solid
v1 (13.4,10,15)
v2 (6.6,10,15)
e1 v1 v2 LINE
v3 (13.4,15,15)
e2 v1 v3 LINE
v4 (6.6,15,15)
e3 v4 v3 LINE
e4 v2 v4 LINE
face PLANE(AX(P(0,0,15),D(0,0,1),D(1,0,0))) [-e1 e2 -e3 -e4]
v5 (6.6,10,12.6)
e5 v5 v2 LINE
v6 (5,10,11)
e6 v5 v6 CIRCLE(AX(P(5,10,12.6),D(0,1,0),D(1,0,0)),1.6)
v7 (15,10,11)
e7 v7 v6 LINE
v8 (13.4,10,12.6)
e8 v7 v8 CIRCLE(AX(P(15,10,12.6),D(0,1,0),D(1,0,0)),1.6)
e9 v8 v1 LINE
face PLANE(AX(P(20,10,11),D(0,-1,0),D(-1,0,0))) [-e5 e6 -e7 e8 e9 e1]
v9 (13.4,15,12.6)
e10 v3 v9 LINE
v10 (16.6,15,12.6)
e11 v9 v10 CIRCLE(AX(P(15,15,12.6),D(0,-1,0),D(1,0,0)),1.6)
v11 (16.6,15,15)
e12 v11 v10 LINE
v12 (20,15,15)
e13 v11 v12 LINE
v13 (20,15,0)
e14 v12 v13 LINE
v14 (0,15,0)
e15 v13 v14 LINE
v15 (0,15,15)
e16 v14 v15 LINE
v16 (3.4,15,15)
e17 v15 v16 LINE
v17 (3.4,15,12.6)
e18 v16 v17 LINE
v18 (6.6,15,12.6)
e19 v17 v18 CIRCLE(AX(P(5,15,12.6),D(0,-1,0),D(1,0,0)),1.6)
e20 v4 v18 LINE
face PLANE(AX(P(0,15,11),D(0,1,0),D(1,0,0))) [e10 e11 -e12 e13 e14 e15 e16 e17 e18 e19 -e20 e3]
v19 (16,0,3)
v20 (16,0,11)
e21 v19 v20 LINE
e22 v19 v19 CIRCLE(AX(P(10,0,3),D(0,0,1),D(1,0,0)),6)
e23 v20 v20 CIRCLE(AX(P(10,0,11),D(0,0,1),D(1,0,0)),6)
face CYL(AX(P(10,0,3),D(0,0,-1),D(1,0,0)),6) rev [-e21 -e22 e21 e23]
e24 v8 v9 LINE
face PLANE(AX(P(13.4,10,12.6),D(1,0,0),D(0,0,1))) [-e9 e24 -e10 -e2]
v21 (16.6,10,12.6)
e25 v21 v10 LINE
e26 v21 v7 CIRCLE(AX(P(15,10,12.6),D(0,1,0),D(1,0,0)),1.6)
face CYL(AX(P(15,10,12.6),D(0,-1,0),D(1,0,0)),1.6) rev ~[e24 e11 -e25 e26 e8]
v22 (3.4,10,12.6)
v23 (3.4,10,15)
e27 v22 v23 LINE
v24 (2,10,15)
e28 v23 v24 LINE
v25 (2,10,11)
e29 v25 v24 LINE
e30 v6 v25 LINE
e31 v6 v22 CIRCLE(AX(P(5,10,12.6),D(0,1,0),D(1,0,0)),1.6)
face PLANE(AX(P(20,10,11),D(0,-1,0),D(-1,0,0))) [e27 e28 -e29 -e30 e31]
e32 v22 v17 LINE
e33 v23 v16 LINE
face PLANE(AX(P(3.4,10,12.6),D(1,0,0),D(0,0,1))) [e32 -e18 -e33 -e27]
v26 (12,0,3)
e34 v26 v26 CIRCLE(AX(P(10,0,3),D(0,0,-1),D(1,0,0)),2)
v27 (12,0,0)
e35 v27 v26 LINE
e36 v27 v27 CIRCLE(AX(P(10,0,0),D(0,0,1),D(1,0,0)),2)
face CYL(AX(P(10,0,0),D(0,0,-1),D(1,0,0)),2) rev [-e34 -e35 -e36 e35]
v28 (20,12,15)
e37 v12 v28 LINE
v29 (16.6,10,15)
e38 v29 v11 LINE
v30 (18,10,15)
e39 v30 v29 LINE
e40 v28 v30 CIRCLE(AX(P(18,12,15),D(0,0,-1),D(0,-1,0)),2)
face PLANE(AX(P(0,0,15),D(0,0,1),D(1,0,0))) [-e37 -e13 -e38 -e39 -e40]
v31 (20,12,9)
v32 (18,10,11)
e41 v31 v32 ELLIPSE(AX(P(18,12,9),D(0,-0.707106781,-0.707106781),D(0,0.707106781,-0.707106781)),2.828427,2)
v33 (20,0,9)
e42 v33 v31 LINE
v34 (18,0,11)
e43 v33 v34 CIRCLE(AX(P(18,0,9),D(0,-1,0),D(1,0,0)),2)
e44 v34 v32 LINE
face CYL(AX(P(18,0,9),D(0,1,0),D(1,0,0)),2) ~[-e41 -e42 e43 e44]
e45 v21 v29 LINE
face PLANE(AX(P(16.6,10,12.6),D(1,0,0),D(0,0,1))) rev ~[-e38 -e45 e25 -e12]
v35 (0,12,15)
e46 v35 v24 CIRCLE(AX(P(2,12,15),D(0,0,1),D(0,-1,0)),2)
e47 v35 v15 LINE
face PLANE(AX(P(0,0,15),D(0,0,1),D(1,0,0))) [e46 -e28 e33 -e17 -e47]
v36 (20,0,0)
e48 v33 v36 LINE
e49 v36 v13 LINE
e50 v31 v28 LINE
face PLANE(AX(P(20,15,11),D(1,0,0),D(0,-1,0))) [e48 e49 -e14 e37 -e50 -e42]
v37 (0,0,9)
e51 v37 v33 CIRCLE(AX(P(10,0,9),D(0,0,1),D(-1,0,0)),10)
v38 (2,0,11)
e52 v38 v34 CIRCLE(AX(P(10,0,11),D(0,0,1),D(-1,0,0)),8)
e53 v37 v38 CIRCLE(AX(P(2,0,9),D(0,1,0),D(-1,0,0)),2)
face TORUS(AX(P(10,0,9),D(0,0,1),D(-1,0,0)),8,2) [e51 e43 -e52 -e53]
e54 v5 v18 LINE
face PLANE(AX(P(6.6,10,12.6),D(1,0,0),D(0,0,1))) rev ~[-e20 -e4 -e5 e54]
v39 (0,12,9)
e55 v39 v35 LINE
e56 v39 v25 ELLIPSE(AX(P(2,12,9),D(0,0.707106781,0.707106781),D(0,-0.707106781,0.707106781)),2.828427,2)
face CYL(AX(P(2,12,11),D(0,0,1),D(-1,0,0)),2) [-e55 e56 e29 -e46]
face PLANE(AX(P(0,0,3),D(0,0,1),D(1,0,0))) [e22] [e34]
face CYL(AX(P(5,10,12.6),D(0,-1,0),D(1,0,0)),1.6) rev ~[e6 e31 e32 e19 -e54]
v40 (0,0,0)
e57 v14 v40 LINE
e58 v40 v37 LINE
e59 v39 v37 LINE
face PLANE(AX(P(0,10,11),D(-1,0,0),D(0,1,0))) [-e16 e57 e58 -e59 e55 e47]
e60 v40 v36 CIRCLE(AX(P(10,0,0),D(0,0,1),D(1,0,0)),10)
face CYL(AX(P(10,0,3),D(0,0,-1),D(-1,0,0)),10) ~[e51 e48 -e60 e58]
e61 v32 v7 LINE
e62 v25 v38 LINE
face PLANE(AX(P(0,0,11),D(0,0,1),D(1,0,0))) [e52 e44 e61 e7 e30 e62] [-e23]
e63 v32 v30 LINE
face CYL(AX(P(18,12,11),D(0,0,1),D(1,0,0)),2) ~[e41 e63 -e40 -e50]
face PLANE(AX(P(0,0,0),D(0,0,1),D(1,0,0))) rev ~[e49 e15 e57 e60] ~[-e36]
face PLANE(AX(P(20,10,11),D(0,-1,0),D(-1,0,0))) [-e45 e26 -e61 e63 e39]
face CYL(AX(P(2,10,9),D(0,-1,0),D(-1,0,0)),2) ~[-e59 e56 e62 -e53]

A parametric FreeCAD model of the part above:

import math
import FreeCAD as App
import Part
import Sketcher

V = App.Vector
Q = App.Units.Quantity


def edges_at(feature, points):
    """Names of the edges that pass closest to the given points."""
    edges = feature.Shape.Edges
    near = lambda p: min(range(len(edges)), key=lambda i: edges[i].distToShape(Part.Vertex(*p))[0])
    return sorted({f"Edge{near(p) + 1}" for p in points})


def add_polygon(sketch, points):
    """Adds a closed chain of lines whose ends are joined by coincident constraints."""
    first, n = sketch.GeometryCount, len(points)
    for a, b in zip(points, points[1:] + points[:1]):
        sketch.addGeometry(Part.LineSegment(App.Vector(*a, 0), App.Vector(*b, 0)), False)
    for i in range(n):
        sketch.addConstraint(Sketcher.Constraint("Coincident", first + i, 2, first + (i + 1) % n, 1))

doc = App.newDocument("Part")
body = doc.addObject("PartDesign::Body", "Body")

# Sketch on XY plane
sketch1 = doc.addObject("Sketcher::SketchObject", "Sketch")
body.addObject(sketch1)
sketch1.AttachmentSupport = (doc.XY_Plane, [""])
sketch1.MapMode = "FlatFace"
sketch1.addGeometry([
    Part.LineSegment(V(0, 15, 0), V(0, 0, 0)),  # 0
    Part.ArcOfCircle(Part.Circle(V(10, 0, 0), V(0, 0, 1), 10), math.radians(180), math.radians(360)),  # 1
    Part.LineSegment(V(20, 0, 0), V(20, 15, 0)),  # 2
    Part.LineSegment(V(20, 15, 0), V(0, 15, 0)),  # 3
    Part.Circle(V(10, 0, 0), V(0, 0, 1), 2),  # 4
], False)
sketch1.addConstraint([
    Sketcher.Constraint("Tangent", 0, 2, 1, 1),
    Sketcher.Constraint("Tangent", 1, 2, 2, 1),
    Sketcher.Constraint("Coincident", 2, 2, 3, 1),
    Sketcher.Constraint("Coincident", 3, 2, 0, 1),
    Sketcher.Constraint("Vertical", 0),
    Sketcher.Constraint("Vertical", 2),
    Sketcher.Constraint("Horizontal", 3),
    Sketcher.Constraint("Coincident", 0, 2, -1, 1),
    Sketcher.Constraint("Coincident", 4, 3, 1, 3),
    Sketcher.Constraint("Diameter", 4, Q("4 mm")),
    Sketcher.Constraint("Radius", 1, Q("10 mm")),
    Sketcher.Constraint("DistanceY", 0, 2, 0, 1, Q("15 mm")),
])
pad1 = doc.addObject("PartDesign::Pad", "Pad")
body.addObject(pad1)
pad1.Profile = sketch1
pad1.Length = 3

# Sketch on XY plane
sketch2 = doc.addObject("Sketcher::SketchObject", "Sketch001")
body.addObject(sketch2)
sketch2.AttachmentSupport = (doc.XY_Plane, [""])
sketch2.MapMode = "FlatFace"
sketch2.AttachmentOffset = App.Placement(V(0, 0, 3), App.Rotation())
sketch2.addGeometry([
    Part.LineSegment(V(20, 15, 0), V(0, 15, 0)),  # 0
    Part.LineSegment(V(0, 15, 0), V(0, 0, 0)),  # 1
    Part.ArcOfCircle(Part.Circle(V(10, 0, 0), V(0, 0, 1), 10), math.radians(180), math.radians(360)),  # 2
    Part.LineSegment(V(20, 0, 0), V(20, 15, 0)),  # 3
    Part.Circle(V(10, 0, 0), V(0, 0, 1), 6),  # 4
], False)
sketch2.addConstraint([
    Sketcher.Constraint("Coincident", 0, 2, 1, 1),
    Sketcher.Constraint("Tangent", 1, 2, 2, 1),
    Sketcher.Constraint("Tangent", 2, 2, 3, 1),
    Sketcher.Constraint("Coincident", 3, 2, 0, 1),
    Sketcher.Constraint("Horizontal", 0),
    Sketcher.Constraint("Vertical", 1),
    Sketcher.Constraint("Vertical", 3),
    Sketcher.Constraint("Coincident", 1, 2, -1, 1),
    Sketcher.Constraint("Coincident", 4, 3, 2, 3),
    Sketcher.Constraint("Diameter", 4, Q("12 mm")),
    Sketcher.Constraint("Radius", 2, Q("10 mm")),
    Sketcher.Constraint("DistanceY", 1, 2, 1, 1, Q("15 mm")),
])
pad2 = doc.addObject("PartDesign::Pad", "Pad001")
body.addObject(pad2)
pad2.Profile = sketch2
pad2.Length = 8

# Sketch on XY plane
sketch3 = doc.addObject("Sketcher::SketchObject", "Sketch002")
body.addObject(sketch3)
sketch3.AttachmentSupport = (doc.XY_Plane, [""])
sketch3.MapMode = "FlatFace"
sketch3.AttachmentOffset = App.Placement(V(0, 0, 11), App.Rotation())
add_polygon(sketch3, [(20, 15), (0, 15), (0, 10), (20, 10)])  # lines 0-3
sketch3.addConstraint([
    Sketcher.Constraint("Horizontal", 0),
    Sketcher.Constraint("Vertical", 1),
    Sketcher.Constraint("Horizontal", 2),
    Sketcher.Constraint("Vertical", 3),
    Sketcher.Constraint("PointOnObject", 0, 2, -2),
    Sketcher.Constraint("DistanceX", 0, 2, 0, 1, Q("20 mm")),
    Sketcher.Constraint("DistanceY", 1, 2, 1, 1, Q("5 mm")),
    Sketcher.Constraint("DistanceY", -1, 1, 0, 2, Q("15 mm")),
])
pad3 = doc.addObject("PartDesign::Pad", "Pad002")
body.addObject(pad3)
pad3.Profile = sketch3
pad3.Length = 4

# Sketch on XZ plane
sketch4 = doc.addObject("Sketcher::SketchObject", "Sketch003")
body.addObject(sketch4)
sketch4.AttachmentSupport = (doc.XZ_Plane, [""])
sketch4.MapMode = "FlatFace"
sketch4.AttachmentOffset = App.Placement(V(0, 0, -10), App.Rotation())
sketch4.addGeometry([
    Part.LineSegment(V(6.6, 12.6, 0), V(6.6, 15, 0)),  # 0
    Part.LineSegment(V(6.6, 15, 0), V(3.4, 15, 0)),  # 1
    Part.LineSegment(V(3.4, 15, 0), V(3.4, 12.6, 0)),  # 2
    Part.ArcOfCircle(Part.Circle(V(5, 12.6, 0), V(0, 0, 1), 1.6), math.radians(180), math.radians(360)),  # 3
    Part.ArcOfCircle(Part.Circle(V(15, 12.6, 0), V(0, 0, 1), 1.6), math.radians(180), math.radians(360)),  # 4
    Part.LineSegment(V(16.6, 12.6, 0), V(16.6, 15, 0)),  # 5
    Part.LineSegment(V(16.6, 15, 0), V(13.4, 15, 0)),  # 6
    Part.LineSegment(V(13.4, 15, 0), V(13.4, 12.6, 0)),  # 7
], False)
sketch4.addConstraint([
    Sketcher.Constraint("Coincident", 0, 2, 1, 1),
    Sketcher.Constraint("Coincident", 1, 2, 2, 1),
    Sketcher.Constraint("Tangent", 2, 2, 3, 1),
    Sketcher.Constraint("Tangent", 3, 2, 0, 1),
    Sketcher.Constraint("Tangent", 4, 2, 5, 1),
    Sketcher.Constraint("Coincident", 5, 2, 6, 1),
    Sketcher.Constraint("Coincident", 6, 2, 7, 1),
    Sketcher.Constraint("Tangent", 7, 2, 4, 1),
    Sketcher.Constraint("Vertical", 0),
    Sketcher.Constraint("Horizontal", 1),
    Sketcher.Constraint("Vertical", 2),
    Sketcher.Constraint("Vertical", 5),
    Sketcher.Constraint("Horizontal", 6),
    Sketcher.Constraint("Vertical", 7),
    Sketcher.Constraint("Equal", 3, 4),
    Sketcher.Constraint("Horizontal", 3, 3, 4, 3),
    Sketcher.Constraint("Horizontal", 1, 2, 5, 2),
    Sketcher.Constraint("Radius", 3, Q("1.6 mm")),
    Sketcher.Constraint("DistanceX", -1, 1, 3, 3, Q("5 mm")),
    Sketcher.Constraint("DistanceY", 0, 1, 0, 2, Q("2.4 mm")),
    Sketcher.Constraint("DistanceX", -1, 1, 4, 3, Q("15 mm")),
    Sketcher.Constraint("DistanceY", -1, 1, 0, 2, Q("15 mm")),
])
pocket1 = doc.addObject("PartDesign::Pocket", "Pocket")
body.addObject(pocket1)
pocket1.Profile = sketch4
pocket1.Type = "ThroughAll"
doc.recompute()

fillet = doc.addObject("PartDesign::Fillet", "Fillet")
body.addObject(fillet)
fillet.Base = (pocket1, edges_at(pocket1, [
    (0, 10, 13),
    (10, -10, 11),
    (20, 5, 11),
    (0, 5, 11),
    (20, 10, 13),
]))
fillet.Radius = 2

doc.recompute()
